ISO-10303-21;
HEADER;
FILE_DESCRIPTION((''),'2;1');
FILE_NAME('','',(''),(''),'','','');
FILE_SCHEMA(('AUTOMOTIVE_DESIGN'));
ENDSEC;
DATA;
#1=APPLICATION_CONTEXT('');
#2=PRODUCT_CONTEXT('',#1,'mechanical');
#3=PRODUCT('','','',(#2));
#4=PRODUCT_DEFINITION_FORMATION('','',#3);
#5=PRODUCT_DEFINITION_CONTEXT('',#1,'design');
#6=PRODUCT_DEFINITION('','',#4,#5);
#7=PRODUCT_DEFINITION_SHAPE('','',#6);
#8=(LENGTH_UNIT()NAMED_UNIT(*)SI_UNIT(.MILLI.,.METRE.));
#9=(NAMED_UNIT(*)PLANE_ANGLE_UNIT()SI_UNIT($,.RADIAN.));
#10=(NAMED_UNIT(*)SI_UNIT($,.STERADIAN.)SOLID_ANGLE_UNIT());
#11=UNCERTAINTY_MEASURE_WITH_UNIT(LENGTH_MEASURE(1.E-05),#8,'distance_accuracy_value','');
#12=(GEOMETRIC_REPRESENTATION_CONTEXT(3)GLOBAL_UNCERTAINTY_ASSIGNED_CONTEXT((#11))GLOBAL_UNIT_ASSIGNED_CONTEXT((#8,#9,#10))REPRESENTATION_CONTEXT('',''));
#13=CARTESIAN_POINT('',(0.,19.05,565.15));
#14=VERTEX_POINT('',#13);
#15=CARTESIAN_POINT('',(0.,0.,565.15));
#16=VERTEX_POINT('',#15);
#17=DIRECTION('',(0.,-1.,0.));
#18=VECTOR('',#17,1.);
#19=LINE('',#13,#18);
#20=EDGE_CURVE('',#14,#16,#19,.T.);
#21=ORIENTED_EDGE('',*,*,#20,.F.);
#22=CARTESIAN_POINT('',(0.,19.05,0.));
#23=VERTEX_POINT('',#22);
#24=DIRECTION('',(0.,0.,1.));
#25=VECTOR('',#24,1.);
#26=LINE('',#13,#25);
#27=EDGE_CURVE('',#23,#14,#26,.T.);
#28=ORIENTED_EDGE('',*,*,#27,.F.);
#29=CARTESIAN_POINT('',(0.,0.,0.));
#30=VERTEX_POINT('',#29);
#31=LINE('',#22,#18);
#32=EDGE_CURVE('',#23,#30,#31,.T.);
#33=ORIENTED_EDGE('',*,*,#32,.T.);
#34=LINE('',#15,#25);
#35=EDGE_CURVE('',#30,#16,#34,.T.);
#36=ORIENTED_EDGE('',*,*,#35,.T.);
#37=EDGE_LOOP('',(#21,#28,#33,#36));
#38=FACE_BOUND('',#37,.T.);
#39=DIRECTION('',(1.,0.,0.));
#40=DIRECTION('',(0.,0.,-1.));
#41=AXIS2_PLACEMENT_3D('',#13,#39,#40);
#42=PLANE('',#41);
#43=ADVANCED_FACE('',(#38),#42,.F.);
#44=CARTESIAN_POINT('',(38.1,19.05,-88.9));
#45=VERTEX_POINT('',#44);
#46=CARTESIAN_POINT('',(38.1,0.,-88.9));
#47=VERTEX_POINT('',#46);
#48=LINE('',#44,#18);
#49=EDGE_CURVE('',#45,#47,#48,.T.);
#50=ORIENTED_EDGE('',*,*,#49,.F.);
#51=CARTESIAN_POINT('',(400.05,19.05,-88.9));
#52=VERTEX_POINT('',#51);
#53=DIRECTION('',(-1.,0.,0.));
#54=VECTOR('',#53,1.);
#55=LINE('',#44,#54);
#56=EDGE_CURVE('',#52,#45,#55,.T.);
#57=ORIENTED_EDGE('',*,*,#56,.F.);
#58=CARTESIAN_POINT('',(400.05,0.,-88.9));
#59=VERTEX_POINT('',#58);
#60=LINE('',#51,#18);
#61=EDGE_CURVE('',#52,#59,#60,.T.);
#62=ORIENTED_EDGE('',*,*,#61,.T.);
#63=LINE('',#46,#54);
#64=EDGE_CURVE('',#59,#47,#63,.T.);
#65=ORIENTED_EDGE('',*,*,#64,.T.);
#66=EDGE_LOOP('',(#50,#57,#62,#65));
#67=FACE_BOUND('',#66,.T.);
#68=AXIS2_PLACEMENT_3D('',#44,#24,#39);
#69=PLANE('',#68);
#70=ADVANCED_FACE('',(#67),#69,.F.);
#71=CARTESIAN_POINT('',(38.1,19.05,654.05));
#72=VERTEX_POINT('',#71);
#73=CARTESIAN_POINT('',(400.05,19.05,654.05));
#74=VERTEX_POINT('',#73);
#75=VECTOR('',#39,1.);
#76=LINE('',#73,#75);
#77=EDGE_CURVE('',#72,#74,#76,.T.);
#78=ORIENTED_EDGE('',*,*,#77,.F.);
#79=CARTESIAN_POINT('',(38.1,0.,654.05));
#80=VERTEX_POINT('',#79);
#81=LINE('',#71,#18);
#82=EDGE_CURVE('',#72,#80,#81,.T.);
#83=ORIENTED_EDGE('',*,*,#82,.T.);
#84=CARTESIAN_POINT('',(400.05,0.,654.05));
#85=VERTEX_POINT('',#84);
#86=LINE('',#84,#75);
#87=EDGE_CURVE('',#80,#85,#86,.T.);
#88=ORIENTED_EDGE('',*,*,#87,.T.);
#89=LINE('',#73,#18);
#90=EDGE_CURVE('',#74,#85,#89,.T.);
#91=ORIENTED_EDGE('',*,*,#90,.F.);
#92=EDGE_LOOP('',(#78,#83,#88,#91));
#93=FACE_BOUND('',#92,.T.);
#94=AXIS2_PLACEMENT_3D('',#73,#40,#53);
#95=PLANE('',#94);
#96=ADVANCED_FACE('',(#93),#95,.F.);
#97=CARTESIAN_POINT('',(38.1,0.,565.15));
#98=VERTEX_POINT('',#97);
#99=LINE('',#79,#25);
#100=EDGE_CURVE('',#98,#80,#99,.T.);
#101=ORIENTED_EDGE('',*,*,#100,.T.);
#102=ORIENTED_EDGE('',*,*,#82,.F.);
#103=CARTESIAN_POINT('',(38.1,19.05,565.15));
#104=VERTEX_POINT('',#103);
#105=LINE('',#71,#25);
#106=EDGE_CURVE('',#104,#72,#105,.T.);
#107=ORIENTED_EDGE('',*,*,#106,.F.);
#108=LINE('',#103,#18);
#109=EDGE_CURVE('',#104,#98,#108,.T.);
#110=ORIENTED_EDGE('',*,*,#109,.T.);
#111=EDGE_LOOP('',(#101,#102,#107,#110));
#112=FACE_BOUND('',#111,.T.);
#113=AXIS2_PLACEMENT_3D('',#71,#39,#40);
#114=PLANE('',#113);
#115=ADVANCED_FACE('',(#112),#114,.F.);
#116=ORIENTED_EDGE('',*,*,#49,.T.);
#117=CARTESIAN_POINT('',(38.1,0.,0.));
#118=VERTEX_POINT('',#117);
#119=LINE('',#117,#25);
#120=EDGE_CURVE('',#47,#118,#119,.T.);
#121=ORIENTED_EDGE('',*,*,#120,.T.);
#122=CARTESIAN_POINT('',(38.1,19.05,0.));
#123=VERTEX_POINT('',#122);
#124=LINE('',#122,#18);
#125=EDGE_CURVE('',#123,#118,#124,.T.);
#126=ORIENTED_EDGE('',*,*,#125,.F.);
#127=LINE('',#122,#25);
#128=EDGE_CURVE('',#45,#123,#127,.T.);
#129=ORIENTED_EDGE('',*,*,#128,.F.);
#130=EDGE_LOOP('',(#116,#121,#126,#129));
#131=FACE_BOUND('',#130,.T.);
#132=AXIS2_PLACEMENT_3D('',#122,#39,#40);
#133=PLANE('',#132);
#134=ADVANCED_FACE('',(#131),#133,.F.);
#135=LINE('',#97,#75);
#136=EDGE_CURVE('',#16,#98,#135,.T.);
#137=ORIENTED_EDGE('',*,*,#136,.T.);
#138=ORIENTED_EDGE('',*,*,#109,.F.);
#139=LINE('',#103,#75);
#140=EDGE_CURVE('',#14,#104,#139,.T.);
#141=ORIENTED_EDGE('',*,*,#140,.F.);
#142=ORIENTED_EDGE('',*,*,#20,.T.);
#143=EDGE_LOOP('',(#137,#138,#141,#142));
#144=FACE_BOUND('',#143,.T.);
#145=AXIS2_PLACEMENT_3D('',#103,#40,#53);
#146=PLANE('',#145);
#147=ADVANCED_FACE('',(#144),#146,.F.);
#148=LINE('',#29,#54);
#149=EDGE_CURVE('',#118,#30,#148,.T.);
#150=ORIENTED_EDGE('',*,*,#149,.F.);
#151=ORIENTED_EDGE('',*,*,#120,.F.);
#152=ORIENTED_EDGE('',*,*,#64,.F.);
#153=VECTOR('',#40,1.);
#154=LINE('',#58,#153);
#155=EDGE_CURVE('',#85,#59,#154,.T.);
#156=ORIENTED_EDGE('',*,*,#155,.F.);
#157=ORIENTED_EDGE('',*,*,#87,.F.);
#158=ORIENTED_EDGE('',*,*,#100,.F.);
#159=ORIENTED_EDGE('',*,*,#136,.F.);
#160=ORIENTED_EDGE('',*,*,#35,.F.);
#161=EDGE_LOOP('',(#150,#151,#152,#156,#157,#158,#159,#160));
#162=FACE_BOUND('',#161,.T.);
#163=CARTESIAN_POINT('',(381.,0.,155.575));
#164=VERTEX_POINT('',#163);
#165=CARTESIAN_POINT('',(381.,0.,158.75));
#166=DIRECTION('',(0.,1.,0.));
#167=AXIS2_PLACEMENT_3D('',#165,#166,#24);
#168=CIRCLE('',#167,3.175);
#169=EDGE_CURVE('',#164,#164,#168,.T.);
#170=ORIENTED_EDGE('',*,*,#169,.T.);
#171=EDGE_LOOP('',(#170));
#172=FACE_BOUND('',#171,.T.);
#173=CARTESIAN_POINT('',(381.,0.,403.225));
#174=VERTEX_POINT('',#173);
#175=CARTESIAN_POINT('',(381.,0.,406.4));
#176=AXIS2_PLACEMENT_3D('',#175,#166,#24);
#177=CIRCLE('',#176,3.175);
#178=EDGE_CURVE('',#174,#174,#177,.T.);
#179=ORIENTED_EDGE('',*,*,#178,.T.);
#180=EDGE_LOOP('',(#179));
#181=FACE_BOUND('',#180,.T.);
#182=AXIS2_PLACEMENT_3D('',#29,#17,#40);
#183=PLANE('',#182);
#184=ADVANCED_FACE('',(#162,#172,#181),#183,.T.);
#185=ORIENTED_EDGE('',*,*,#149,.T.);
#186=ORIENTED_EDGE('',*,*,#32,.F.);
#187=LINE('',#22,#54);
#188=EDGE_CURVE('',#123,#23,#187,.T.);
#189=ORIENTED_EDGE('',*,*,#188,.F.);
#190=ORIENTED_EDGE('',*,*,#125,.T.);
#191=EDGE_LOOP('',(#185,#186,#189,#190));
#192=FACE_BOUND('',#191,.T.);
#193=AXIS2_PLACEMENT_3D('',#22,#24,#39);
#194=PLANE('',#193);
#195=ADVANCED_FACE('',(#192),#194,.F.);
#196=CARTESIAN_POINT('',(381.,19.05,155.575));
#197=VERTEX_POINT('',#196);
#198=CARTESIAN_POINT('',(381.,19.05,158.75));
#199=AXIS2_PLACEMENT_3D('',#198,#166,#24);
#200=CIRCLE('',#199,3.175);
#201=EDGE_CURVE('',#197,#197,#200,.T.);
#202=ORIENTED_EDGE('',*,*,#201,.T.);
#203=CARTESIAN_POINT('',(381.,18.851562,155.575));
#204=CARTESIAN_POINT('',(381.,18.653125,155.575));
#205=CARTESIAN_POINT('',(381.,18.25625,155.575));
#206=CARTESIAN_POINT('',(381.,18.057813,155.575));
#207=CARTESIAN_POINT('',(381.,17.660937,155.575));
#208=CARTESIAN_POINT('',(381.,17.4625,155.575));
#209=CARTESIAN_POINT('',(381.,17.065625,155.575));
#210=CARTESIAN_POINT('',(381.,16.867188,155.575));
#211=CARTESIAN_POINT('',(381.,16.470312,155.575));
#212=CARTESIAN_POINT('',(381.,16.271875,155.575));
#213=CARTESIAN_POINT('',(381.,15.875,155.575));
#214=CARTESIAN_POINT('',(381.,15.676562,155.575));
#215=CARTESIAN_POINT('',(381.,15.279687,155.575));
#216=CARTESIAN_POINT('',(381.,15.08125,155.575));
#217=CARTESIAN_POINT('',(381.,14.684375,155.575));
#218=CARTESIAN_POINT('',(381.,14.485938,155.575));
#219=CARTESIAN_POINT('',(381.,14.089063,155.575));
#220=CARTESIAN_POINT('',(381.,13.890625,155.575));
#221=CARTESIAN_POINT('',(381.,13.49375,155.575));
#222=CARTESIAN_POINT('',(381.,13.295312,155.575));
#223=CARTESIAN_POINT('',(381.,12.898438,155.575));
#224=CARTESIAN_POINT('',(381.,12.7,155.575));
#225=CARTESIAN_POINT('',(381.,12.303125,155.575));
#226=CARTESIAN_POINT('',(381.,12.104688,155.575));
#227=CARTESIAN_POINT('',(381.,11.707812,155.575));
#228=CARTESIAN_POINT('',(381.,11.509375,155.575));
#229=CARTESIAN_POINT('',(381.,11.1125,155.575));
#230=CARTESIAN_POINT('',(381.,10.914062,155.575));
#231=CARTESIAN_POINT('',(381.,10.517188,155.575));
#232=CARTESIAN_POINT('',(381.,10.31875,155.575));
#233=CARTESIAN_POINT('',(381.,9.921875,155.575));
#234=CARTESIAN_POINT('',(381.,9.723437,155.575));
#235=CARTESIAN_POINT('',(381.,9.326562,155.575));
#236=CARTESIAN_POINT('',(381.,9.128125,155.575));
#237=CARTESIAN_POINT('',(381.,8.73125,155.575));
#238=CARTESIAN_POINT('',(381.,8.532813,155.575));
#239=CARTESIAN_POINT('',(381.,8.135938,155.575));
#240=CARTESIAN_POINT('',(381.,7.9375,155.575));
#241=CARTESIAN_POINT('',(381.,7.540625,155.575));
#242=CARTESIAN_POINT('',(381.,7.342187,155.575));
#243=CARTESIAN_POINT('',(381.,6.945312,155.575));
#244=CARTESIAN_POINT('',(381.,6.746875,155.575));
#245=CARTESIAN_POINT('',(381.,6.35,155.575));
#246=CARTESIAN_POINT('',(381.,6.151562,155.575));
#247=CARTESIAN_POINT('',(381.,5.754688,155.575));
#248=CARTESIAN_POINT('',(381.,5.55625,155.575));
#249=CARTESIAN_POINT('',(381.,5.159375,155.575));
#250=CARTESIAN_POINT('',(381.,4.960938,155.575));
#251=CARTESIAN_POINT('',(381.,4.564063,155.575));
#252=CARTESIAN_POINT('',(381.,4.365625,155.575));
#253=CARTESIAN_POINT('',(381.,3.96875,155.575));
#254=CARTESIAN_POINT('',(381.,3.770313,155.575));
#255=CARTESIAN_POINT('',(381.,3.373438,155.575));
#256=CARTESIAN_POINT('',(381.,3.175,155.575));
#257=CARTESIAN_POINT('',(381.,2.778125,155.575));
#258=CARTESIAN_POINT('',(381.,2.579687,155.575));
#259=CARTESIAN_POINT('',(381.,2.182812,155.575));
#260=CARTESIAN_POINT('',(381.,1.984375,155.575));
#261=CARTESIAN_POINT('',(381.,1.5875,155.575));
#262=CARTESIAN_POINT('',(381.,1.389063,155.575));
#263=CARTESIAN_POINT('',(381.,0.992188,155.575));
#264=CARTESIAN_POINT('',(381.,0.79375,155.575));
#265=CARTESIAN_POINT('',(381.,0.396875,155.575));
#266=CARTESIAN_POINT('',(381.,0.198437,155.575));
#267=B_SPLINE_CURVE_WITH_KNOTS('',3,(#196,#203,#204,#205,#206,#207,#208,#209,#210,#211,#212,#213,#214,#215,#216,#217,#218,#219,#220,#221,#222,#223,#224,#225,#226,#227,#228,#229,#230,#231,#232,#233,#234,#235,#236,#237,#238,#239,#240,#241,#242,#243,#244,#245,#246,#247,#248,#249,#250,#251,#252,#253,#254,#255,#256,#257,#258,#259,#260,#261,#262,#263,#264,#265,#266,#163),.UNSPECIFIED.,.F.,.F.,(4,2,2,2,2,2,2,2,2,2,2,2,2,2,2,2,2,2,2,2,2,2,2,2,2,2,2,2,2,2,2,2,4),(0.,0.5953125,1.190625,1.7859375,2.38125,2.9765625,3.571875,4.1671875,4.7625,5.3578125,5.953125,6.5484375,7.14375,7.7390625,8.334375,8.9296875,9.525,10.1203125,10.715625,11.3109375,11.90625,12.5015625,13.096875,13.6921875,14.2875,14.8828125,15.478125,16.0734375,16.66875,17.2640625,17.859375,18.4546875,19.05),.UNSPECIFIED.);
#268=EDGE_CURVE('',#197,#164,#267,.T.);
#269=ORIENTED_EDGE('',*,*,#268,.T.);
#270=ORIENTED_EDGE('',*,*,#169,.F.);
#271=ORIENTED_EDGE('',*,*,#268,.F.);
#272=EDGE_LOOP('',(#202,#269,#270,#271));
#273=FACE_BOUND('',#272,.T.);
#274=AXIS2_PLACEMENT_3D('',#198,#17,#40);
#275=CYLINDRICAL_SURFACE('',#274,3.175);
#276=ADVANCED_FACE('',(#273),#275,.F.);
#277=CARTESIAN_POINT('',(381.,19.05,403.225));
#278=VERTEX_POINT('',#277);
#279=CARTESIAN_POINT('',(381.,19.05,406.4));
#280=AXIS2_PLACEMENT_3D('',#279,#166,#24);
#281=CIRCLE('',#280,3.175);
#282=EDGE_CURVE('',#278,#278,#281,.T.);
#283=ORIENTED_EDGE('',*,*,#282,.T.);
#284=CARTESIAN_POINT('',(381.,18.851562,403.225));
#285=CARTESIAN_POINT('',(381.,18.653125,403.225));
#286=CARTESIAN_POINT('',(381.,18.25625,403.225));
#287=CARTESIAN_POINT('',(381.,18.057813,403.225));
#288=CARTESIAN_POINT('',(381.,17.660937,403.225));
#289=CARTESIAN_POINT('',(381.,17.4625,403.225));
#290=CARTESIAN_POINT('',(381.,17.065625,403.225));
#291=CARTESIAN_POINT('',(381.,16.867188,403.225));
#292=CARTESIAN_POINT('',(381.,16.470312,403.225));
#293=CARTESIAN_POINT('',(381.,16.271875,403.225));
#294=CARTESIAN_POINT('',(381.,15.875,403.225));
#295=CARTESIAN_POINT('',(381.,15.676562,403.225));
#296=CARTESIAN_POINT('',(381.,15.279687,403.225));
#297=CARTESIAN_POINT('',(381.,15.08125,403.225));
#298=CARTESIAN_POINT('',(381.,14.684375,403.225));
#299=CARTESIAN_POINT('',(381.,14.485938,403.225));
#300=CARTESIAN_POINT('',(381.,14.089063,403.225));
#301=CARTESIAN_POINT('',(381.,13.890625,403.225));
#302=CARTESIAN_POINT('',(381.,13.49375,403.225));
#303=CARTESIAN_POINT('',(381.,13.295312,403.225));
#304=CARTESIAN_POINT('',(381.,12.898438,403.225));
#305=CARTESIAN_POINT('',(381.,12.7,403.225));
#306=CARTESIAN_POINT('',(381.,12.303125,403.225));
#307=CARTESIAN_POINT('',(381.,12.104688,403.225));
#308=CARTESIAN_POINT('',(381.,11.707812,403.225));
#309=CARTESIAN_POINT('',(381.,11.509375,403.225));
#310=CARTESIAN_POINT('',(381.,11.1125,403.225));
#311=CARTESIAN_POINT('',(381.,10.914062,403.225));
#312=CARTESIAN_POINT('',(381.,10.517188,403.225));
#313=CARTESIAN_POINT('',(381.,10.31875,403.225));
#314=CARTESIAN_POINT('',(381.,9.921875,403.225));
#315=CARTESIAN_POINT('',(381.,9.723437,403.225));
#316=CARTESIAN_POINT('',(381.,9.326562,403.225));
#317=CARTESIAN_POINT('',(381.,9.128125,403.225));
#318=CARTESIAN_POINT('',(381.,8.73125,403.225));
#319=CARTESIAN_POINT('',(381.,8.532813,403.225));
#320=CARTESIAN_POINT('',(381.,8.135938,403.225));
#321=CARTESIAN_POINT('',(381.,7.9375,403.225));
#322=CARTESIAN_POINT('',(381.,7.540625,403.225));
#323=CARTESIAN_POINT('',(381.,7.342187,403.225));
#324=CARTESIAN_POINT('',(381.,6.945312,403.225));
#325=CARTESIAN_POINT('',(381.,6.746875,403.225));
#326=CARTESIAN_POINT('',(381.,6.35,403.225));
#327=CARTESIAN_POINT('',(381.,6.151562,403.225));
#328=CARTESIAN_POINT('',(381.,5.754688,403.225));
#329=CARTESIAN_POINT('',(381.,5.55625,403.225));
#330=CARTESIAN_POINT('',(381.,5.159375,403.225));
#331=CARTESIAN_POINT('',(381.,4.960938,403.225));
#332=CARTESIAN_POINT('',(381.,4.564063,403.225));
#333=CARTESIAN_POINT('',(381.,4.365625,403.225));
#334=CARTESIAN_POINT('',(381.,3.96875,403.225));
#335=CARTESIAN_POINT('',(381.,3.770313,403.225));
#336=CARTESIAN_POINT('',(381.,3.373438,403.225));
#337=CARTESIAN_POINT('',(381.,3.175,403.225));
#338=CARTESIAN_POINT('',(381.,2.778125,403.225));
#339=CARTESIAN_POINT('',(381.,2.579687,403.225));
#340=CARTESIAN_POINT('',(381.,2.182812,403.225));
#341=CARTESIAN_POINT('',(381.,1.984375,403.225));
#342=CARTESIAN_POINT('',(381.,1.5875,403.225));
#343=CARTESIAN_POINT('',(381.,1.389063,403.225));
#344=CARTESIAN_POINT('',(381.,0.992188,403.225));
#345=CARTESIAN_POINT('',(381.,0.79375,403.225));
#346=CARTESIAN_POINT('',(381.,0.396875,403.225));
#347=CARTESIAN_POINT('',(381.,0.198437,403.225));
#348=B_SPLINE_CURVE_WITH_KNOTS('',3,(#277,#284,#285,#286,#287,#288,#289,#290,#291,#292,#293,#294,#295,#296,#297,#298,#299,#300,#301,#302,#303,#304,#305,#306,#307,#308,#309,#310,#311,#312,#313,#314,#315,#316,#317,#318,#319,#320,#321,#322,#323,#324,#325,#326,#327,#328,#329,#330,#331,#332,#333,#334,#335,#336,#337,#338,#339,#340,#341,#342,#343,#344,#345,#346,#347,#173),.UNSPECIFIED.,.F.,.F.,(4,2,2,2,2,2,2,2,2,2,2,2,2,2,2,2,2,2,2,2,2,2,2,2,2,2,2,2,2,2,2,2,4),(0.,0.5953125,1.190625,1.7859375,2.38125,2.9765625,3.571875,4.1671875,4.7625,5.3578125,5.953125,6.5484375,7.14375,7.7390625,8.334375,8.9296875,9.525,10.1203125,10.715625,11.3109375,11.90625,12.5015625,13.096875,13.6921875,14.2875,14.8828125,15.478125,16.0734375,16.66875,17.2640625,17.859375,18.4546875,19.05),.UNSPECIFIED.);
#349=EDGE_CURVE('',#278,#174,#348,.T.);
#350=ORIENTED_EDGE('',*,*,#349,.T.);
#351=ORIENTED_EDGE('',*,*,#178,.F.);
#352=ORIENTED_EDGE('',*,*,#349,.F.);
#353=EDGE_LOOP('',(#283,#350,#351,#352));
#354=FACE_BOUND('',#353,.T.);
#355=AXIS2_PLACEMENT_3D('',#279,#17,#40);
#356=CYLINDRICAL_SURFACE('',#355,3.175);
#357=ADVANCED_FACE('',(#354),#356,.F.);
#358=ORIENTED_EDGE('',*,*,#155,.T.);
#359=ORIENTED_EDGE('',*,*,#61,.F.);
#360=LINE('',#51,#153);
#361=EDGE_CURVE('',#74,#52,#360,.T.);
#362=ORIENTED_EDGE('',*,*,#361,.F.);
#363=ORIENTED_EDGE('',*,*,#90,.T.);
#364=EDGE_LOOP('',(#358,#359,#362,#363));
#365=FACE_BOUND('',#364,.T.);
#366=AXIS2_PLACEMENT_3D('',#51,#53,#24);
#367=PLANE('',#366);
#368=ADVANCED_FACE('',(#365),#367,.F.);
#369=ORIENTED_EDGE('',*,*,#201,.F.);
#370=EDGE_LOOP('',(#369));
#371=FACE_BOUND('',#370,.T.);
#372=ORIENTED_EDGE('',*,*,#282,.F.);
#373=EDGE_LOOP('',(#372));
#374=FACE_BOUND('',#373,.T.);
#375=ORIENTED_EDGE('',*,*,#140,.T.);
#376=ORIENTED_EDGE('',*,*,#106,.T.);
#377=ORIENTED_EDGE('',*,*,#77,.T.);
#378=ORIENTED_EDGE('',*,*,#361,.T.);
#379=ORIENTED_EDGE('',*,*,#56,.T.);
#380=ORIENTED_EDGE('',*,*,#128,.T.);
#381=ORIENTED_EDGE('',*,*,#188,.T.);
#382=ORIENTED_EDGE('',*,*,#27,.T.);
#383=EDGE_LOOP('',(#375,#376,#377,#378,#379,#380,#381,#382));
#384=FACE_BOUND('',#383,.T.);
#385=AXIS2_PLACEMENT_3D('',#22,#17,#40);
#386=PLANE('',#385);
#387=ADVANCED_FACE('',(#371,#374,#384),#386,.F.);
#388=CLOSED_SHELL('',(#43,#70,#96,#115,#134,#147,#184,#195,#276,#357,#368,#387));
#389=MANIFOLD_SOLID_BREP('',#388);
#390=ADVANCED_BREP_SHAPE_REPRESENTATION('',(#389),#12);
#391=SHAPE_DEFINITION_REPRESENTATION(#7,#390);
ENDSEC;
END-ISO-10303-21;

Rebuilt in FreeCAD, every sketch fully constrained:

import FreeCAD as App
import Part
import Sketcher
from FreeCAD import Vector
Q = App.Units.Quantity


def add_polygon(sketch, points):
    """Adds a closed chain of lines whose ends are joined by coincident constraints."""
    first, n = sketch.GeometryCount, len(points)
    for a, b in zip(points, points[1:] + points[:1]):
        sketch.addGeometry(Part.LineSegment(App.Vector(*a, 0), App.Vector(*b, 0)), False)
    for i in range(n):
        sketch.addConstraint(Sketcher.Constraint("Coincident", first + i, 2, first + (i + 1) % n, 1))

doc = App.newDocument("Part")
body = doc.addObject("PartDesign::Body", "Body")

sketch1 = body.newObject("Sketcher::SketchObject", "Sketch")
sketch1.AttachmentSupport = (doc.getObject("XZ_Plane"), [""])
sketch1.MapMode = "FlatFace"
add_polygon(sketch1, [(38.1, 0), (0, 0), (0, 565.1), (38.1, 565.1), (38.1, 654), (400.1, 654), (400.1, -88.9), (38.1, -88.9)])
sketch1.addGeometry(Part.Circle(Vector(381, 406.4, 0), Vector(0, 0, 1), 3.2), False)
sketch1.addGeometry(Part.Circle(Vector(381, 158.8, 0), Vector(0, 0, 1), 3.2), False)
sketch1.addConstraint([
    Sketcher.Constraint("Horizontal", 0),
    Sketcher.Constraint("Vertical", 1),
    Sketcher.Constraint("Horizontal", 2),
    Sketcher.Constraint("Vertical", 3),
    Sketcher.Constraint("Horizontal", 4),
    Sketcher.Constraint("Vertical", 5),
    Sketcher.Constraint("Horizontal", 6),
    Sketcher.Constraint("Vertical", 7),
    Sketcher.Constraint("Coincident", 0, 2, -1, 1),
    Sketcher.Constraint("Equal", 8, 9),
    Sketcher.Constraint("Vertical", 8, 3, 9, 3),
    Sketcher.Constraint("Vertical", 3, 2, 6, 2),
    Sketcher.Constraint("Equal", 3, 7),
    Sketcher.Constraint("Diameter", 8, Q("0.25 in")),
    Sketcher.Constraint("DistanceX", 0, 2, 0, 1, Q("1.5 in")),
    Sketcher.Constraint("DistanceY", 3, 1, 3, 2, Q("3.5 in")),
    Sketcher.Constraint("DistanceX", -1, 1, 8, 3, Q("15 in")),
    Sketcher.Constraint("DistanceY", -1, 1, 8, 3, Q("16 in")),
    Sketcher.Constraint("DistanceY", 9, 3, 1, 2, Q("16 in")),
    Sketcher.Constraint("DistanceX", 4, 1, 4, 2, Q("14.25 in")),
    Sketcher.Constraint("DistanceY", 1, 1, 1, 2, Q("22.25 in")),
])
pad1 = body.newObject("PartDesign::Pad", "Pad")
pad1.Profile = sketch1
pad1.Length = Q("0.75 in")
pad1.Reversed = True

doc.recompute()
